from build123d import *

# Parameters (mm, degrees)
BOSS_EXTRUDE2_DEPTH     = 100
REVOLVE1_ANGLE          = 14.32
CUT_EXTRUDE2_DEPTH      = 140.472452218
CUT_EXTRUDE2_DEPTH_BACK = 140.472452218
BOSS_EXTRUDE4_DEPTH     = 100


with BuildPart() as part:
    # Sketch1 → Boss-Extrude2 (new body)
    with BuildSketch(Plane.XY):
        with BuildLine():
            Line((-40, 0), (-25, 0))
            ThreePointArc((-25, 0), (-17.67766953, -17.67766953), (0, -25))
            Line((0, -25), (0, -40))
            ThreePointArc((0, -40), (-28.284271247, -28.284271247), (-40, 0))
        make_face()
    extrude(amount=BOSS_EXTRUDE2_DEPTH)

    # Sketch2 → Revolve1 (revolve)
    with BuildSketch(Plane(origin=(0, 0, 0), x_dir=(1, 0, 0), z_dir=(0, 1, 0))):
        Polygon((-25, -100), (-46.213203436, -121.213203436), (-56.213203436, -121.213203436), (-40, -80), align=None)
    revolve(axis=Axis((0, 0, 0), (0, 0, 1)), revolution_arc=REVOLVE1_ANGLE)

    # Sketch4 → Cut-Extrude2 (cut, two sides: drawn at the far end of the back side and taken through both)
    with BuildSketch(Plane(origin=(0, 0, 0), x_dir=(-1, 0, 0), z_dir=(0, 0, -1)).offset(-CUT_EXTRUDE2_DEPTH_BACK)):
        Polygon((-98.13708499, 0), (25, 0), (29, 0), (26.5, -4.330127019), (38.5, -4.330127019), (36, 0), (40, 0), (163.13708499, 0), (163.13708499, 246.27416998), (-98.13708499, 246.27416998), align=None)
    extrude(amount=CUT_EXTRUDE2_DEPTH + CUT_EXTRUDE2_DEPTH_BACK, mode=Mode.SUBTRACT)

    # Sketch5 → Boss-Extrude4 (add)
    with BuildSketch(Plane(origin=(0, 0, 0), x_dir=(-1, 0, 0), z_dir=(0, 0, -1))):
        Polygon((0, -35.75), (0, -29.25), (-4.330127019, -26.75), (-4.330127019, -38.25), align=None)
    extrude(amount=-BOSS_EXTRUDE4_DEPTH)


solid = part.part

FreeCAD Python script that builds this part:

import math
import FreeCAD as App
import Part
import Sketcher
Q = App.Units.Quantity


def add_polygon(sketch, points):
    """Adds a closed chain of lines whose ends are joined by coincident constraints."""
    first, n = sketch.GeometryCount, len(points)
    for a, b in zip(points, points[1:] + points[:1]):
        sketch.addGeometry(Part.LineSegment(App.Vector(*a, 0), App.Vector(*b, 0)), False)
    for i in range(n):
        sketch.addConstraint(Sketcher.Constraint("Coincident", first + i, 2, first + (i + 1) % n, 1))

doc = App.newDocument("Part")
params = doc.addObject("Spreadsheet::Sheet", "Params")
for row, (alias, value) in enumerate([
    ("sketch1_radius", "40 mm"),
    ("sketch1_radius2", "25 mm"),
    ("pad1_length", "100 mm"),
    ("sketch2_width", "10 mm"),
    ("sketch2_length", "30 mm"),
    ("sketch2_length2", "25 mm"),
    ("revolution_angle", "14.32 deg"),
    ("sketch3_width", "12 mm"),
    ("sketch3_length", "5 mm"),
    ("sketch4_length", "5 mm"),
    ("sketch4_height", "6.5 mm"),
    ("pad2_length", "100 mm"),
], start=1):
    params.set(f"A{row}", alias)
    params.set(f"B{row}", "=" + value)
    params.setAlias(f"B{row}", alias)

body = doc.addObject("PartDesign::Body", "Body")

sketch1 = doc.addObject("Sketcher::SketchObject", "Sketch")
body.addObject(sketch1)
sketch1.AttachmentSupport = (doc.XY_Plane, [""])
sketch1.MapMode = "FlatFace"
sketch1.addGeometry([
    Part.LineSegment(App.Vector(-25, 0, 0), App.Vector(-40, 0, 0)),
    Part.ArcOfCircle(Part.Circle(App.Vector(0, 0, 0), App.Vector(0, 0, 1), 40), math.radians(-180), math.radians(-90)),
    Part.LineSegment(App.Vector(0, -40, 0), App.Vector(0, -25, 0)),
    Part.ArcOfCircle(Part.Circle(App.Vector(0, 0, 0), App.Vector(0, 0, 1), 25), math.radians(180), math.radians(270)),
], False)
sketch1.addConstraint([
    Sketcher.Constraint("Coincident", 0, 2, 1, 1),
    Sketcher.Constraint("Coincident", 1, 2, 2, 1),
    Sketcher.Constraint("Coincident", 2, 2, 3, 2),
    Sketcher.Constraint("Coincident", 3, 1, 0, 1),
    Sketcher.Constraint("Horizontal", 0),
    Sketcher.Constraint("Vertical", 2),
    Sketcher.Constraint("Coincident", 1, 3, -1, 1),
    Sketcher.Constraint("Coincident", 3, 3, -1, 1),
    Sketcher.Constraint("PointOnObject", 0, 2, -1),
    Sketcher.Constraint("PointOnObject", 1, 2, -2),
    Sketcher.Constraint("Radius", 1, 40.0),
    Sketcher.Constraint("Radius", 3, 25.0),
])
sketch1.setExpression("Constraints[10]", "Params.sketch1_radius")
sketch1.setExpression("Constraints[11]", "Params.sketch1_radius2")
pad1 = doc.addObject("PartDesign::Pad", "Pad")
body.addObject(pad1)
pad1.Profile = sketch1
pad1.setExpression("Length", "Params.pad1_length")

sketch2 = doc.addObject("Sketcher::SketchObject", "Sketch001")
body.addObject(sketch2)
sketch2.AttachmentSupport = (doc.XZ_Plane, [""])
sketch2.MapMode = "FlatFace"
add_polygon(sketch2, [(-46, 121), (-25, 100), (-40, 80), (-56, 121)])
sketch2.addConstraint([
    Sketcher.Constraint("Horizontal", 3),
    Sketcher.Constraint("DistanceX", 3, 1, 3, 2, 10.0),
    Sketcher.Constraint("Angle", 0, Q("-45 deg")),
    Sketcher.Constraint("Distance", 0, 30.0),
    Sketcher.Constraint("Distance", 1, 25.0),
    Sketcher.Constraint("DistanceX", 0, 2, -1, 1, 25.0),
    Sketcher.Constraint("DistanceY", -1, 1, 0, 2, 100.0),
    Sketcher.Constraint("DistanceX", 1, 2, -1, 1, 40.0),
])
sketch2.setExpression("Constraints[5]", "Params.sketch2_width")
sketch2.setExpression("Constraints[7]", "Params.sketch2_length")
sketch2.setExpression("Constraints[8]", "Params.sketch2_length2")
revolution = doc.addObject("PartDesign::Revolution", "Revolution")
body.addObject(revolution)
revolution.Profile = sketch2
revolution.ReferenceAxis = (sketch2, ["V_Axis"])
revolution.setExpression("Angle", "Params.revolution_angle")

sketch3 = doc.addObject("Sketcher::SketchObject", "Sketch002")
body.addObject(sketch3)
sketch3.AttachmentSupport = (doc.XY_Plane, [""])
sketch3.MapMode = "FlatFace"
add_polygon(sketch3, [(98, 0), (-29, 0), (-26, -4), (-38, -4), (-36, 0), (-163, 0), (-163, 246), (98, 246)])
sketch3.addConstraint([
    Sketcher.Constraint("Horizontal", 0),
    Sketcher.Constraint("Horizontal", 2),
    Sketcher.Constraint("Horizontal", 4),
    Sketcher.Constraint("Vertical", 5),
    Sketcher.Constraint("Horizontal", 6),
    Sketcher.Constraint("Vertical", 7),
    Sketcher.Constraint("PointOnObject", 0, 2, -1),
    Sketcher.Constraint("PointOnObject", 3, 2, -1),
    Sketcher.Constraint("Equal", 0, 4),
    Sketcher.Constraint("Equal", 1, 3),
    Sketcher.Constraint("DistanceX", 2, 2, 2, 1, 12.0),
    Sketcher.Constraint("Angle", 1, Q("-60 deg")),
    Sketcher.Constraint("Distance", 1, 5.0),
    Sketcher.Constraint("DistanceX", 0, 2, -1, 1, 29.0),
    Sketcher.Constraint("DistanceX", 6, 1, 6, 2, 261.27417),
    Sketcher.Constraint("DistanceY", 5, 1, 5, 2, 246.27417),
])
sketch3.setExpression("Constraints[18]", "Params.sketch3_width")
sketch3.setExpression("Constraints[20]", "Params.sketch3_length")
pocket1 = doc.addObject("PartDesign::Pocket", "Pocket")
body.addObject(pocket1)
pocket1.Profile = sketch3
pocket1.Type = "ThroughAll"
pocket1.Midplane = True

sketch4 = doc.addObject("Sketcher::SketchObject", "Sketch003")
body.addObject(sketch4)
sketch4.AttachmentSupport = (doc.XY_Plane, [""])
sketch4.MapMode = "FlatFace"
add_polygon(sketch4, [(0, -36), (0, -29), (4, -27), (4, -38)])
sketch4.addConstraint([
    Sketcher.Constraint("Vertical", 0),
    Sketcher.Constraint("Vertical", 2),
    Sketcher.Constraint("PointOnObject", 0, 2, -2),
    Sketcher.Constraint("Equal", 1, 3),
    Sketcher.Constraint("Angle", 1, Q("30 deg")),
    Sketcher.Constraint("Distance", 1, 5.0),
    Sketcher.Constraint("DistanceY", 0, 1, 0, 2, 6.5),
    Sketcher.Constraint("DistanceY", 0, 2, -1, 1, 29.25),
])
sketch4.setExpression("Constraints[9]", "Params.sketch4_length")
sketch4.setExpression("Constraints[10]", "Params.sketch4_height")
pad2 = doc.addObject("PartDesign::Pad", "Pad001")
body.addObject(pad2)
pad2.Profile = sketch4
pad2.setExpression("Length", "Params.pad2_length")

doc.recompute()
